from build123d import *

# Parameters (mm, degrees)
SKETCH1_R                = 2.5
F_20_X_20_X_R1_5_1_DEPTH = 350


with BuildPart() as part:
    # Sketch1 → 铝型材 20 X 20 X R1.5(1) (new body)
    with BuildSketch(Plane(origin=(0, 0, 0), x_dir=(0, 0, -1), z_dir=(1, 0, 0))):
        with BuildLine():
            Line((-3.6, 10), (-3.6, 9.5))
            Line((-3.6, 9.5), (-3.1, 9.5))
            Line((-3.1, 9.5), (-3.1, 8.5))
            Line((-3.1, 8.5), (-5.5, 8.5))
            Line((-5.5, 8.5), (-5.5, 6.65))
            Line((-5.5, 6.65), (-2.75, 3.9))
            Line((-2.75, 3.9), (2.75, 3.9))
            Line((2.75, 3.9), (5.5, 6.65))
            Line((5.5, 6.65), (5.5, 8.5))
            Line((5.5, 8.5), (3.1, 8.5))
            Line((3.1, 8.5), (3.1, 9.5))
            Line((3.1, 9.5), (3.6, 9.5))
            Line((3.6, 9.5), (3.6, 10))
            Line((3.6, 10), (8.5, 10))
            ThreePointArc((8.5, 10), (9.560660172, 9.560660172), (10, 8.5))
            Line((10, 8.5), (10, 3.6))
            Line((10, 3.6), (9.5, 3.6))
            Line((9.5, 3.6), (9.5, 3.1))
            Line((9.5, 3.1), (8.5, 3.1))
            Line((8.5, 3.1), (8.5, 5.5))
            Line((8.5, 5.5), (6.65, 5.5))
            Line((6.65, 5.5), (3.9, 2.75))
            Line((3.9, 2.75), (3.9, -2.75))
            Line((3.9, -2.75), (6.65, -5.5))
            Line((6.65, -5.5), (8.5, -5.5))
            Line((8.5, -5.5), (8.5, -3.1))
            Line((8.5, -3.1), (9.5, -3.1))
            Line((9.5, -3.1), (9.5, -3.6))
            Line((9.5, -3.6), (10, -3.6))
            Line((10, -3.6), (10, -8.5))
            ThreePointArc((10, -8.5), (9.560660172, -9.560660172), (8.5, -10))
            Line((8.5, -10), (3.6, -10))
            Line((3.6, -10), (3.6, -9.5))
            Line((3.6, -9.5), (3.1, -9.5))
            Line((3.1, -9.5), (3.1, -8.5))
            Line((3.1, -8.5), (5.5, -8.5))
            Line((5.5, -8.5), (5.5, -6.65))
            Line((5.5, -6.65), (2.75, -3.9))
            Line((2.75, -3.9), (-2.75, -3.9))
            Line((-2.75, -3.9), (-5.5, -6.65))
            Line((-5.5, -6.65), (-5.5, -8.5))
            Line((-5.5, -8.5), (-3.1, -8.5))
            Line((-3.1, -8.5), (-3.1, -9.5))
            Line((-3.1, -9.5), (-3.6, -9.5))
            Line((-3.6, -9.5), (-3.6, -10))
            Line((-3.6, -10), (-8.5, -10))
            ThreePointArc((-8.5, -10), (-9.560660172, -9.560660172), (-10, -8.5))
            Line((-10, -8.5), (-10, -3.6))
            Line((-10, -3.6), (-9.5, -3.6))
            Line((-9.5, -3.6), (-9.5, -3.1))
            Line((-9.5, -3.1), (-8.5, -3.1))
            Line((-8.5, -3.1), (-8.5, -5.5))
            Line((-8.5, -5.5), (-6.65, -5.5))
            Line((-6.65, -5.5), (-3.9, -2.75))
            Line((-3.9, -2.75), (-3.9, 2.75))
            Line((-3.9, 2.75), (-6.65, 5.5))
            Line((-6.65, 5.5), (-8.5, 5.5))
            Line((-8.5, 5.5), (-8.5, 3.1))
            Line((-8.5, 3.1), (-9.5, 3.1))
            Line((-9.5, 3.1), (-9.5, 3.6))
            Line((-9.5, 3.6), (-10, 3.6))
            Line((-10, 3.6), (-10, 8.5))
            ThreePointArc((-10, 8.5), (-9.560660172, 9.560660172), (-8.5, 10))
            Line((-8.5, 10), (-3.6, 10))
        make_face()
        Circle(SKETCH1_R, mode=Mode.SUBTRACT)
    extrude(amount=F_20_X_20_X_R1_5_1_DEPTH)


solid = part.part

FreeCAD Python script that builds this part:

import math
import FreeCAD as App
import Part
import Sketcher
from FreeCAD import Vector

doc = App.newDocument("Part")
body = doc.addObject("PartDesign::Body", "Body")

sketch1 = body.newObject("Sketcher::SketchObject", "Sketch")
sketch1.AttachmentSupport = (doc.getObject("YZ_Plane"), [""])
sketch1.MapMode = "FlatFace"
sketch1.addGeometry(Part.LineSegment(Vector(9.5, 3.6, 0), Vector(10, 3.6, 0)), False)
sketch1.addGeometry(Part.LineSegment(Vector(10, 3.6, 0), Vector(10, 8.5, 0)), False)
sketch1.addGeometry(Part.ArcOfCircle(Part.Circle(Vector(8.5, 8.5, 0), Vector(0, 0, 1), 1.5), math.radians(0), math.radians(90)), False)
sketch1.addGeometry(Part.LineSegment(Vector(8.5, 10, 0), Vector(3.6, 10, 0)), False)
sketch1.addGeometry(Part.LineSegment(Vector(3.6, 10, 0), Vector(3.6, 9.5, 0)), False)
sketch1.addGeometry(Part.LineSegment(Vector(3.6, 9.5, 0), Vector(3.1, 9.5, 0)), False)
sketch1.addGeometry(Part.LineSegment(Vector(3.1, 9.5, 0), Vector(3.1, 8.5, 0)), False)
sketch1.addGeometry(Part.LineSegment(Vector(3.1, 8.5, 0), Vector(5.5, 8.5, 0)), False)
sketch1.addGeometry(Part.LineSegment(Vector(5.5, 8.5, 0), Vector(5.5, 6.7, 0)), False)
sketch1.addGeometry(Part.LineSegment(Vector(5.5, 6.7, 0), Vector(2.8, 3.9, 0)), False)
sketch1.addGeometry(Part.LineSegment(Vector(2.8, 3.9, 0), Vector(-2.8, 3.9, 0)), False)
sketch1.addGeometry(Part.LineSegment(Vector(-2.8, 3.9, 0), Vector(-5.5, 6.7, 0)), False)
sketch1.addGeometry(Part.LineSegment(Vector(-5.5, 6.7, 0), Vector(-5.5, 8.5, 0)), False)
sketch1.addGeometry(Part.LineSegment(Vector(-5.5, 8.5, 0), Vector(-3.1, 8.5, 0)), False)
sketch1.addGeometry(Part.LineSegment(Vector(-3.1, 8.5, 0), Vector(-3.1, 9.5, 0)), False)
sketch1.addGeometry(Part.LineSegment(Vector(-3.1, 9.5, 0), Vector(-3.6, 9.5, 0)), False)
sketch1.addGeometry(Part.LineSegment(Vector(-3.6, 9.5, 0), Vector(-3.6, 10, 0)), False)
sketch1.addGeometry(Part.LineSegment(Vector(-3.6, 10, 0), Vector(-8.5, 10, 0)), False)
sketch1.addGeometry(Part.ArcOfCircle(Part.Circle(Vector(-8.5, 8.5, 0), Vector(0, 0, 1), 1.5), math.radians(90), math.radians(180)), False)
sketch1.addGeometry(Part.LineSegment(Vector(-10, 8.5, 0), Vector(-10, 3.6, 0)), False)
sketch1.addGeometry(Part.LineSegment(Vector(-10, 3.6, 0), Vector(-9.5, 3.6, 0)), False)
sketch1.addGeometry(Part.LineSegment(Vector(-9.5, 3.6, 0), Vector(-9.5, 3.1, 0)), False)
sketch1.addGeometry(Part.LineSegment(Vector(-9.5, 3.1, 0), Vector(-8.5, 3.1, 0)), False)
sketch1.addGeometry(Part.LineSegment(Vector(-8.5, 3.1, 0), Vector(-8.5, 5.5, 0)), False)
sketch1.addGeometry(Part.LineSegment(Vector(-8.5, 5.5, 0), Vector(-6.7, 5.5, 0)), False)
sketch1.addGeometry(Part.LineSegment(Vector(-6.7, 5.5, 0), Vector(-3.9, 2.8, 0)), False)
sketch1.addGeometry(Part.LineSegment(Vector(-3.9, 2.8, 0), Vector(-3.9, -2.8, 0)), False)
sketch1.addGeometry(Part.LineSegment(Vector(-3.9, -2.8, 0), Vector(-6.7, -5.5, 0)), False)
sketch1.addGeometry(Part.LineSegment(Vector(-6.7, -5.5, 0), Vector(-8.5, -5.5, 0)), False)
sketch1.addGeometry(Part.LineSegment(Vector(-8.5, -5.5, 0), Vector(-8.5, -3.1, 0)), False)
sketch1.addGeometry(Part.LineSegment(Vector(-8.5, -3.1, 0), Vector(-9.5, -3.1, 0)), False)
sketch1.addGeometry(Part.LineSegment(Vector(-9.5, -3.1, 0), Vector(-9.5, -3.6, 0)), False)
sketch1.addGeometry(Part.LineSegment(Vector(-9.5, -3.6, 0), Vector(-10, -3.6, 0)), False)
sketch1.addGeometry(Part.LineSegment(Vector(-10, -3.6, 0), Vector(-10, -8.5, 0)), False)
sketch1.addGeometry(Part.ArcOfCircle(Part.Circle(Vector(-8.5, -8.5, 0), Vector(0, 0, 1), 1.5), math.radians(180), math.radians(270)), False)
sketch1.addGeometry(Part.LineSegment(Vector(-8.5, -10, 0), Vector(-3.6, -10, 0)), False)
sketch1.addGeometry(Part.LineSegment(Vector(-3.6, -10, 0), Vector(-3.6, -9.5, 0)), False)
sketch1.addGeometry(Part.LineSegment(Vector(-3.6, -9.5, 0), Vector(-3.1, -9.5, 0)), False)
sketch1.addGeometry(Part.LineSegment(Vector(-3.1, -9.5, 0), Vector(-3.1, -8.5, 0)), False)
sketch1.addGeometry(Part.LineSegment(Vector(-3.1, -8.5, 0), Vector(-5.5, -8.5, 0)), False)
sketch1.addGeometry(Part.LineSegment(Vector(-5.5, -8.5, 0), Vector(-5.5, -6.7, 0)), False)
sketch1.addGeometry(Part.LineSegment(Vector(-5.5, -6.7, 0), Vector(-2.8, -3.9, 0)), False)
sketch1.addGeometry(Part.LineSegment(Vector(-2.8, -3.9, 0), Vector(2.8, -3.9, 0)), False)
sketch1.addGeometry(Part.LineSegment(Vector(2.8, -3.9, 0), Vector(5.5, -6.7, 0)), False)
sketch1.addGeometry(Part.LineSegment(Vector(5.5, -6.7, 0), Vector(5.5, -8.5, 0)), False)
sketch1.addGeometry(Part.LineSegment(Vector(5.5, -8.5, 0), Vector(3.1, -8.5, 0)), False)
sketch1.addGeometry(Part.LineSegment(Vector(3.1, -8.5, 0), Vector(3.1, -9.5, 0)), False)
sketch1.addGeometry(Part.LineSegment(Vector(3.1, -9.5, 0), Vector(3.6, -9.5, 0)), False)
sketch1.addGeometry(Part.LineSegment(Vector(3.6, -9.5, 0), Vector(3.6, -10, 0)), False)
sketch1.addGeometry(Part.LineSegment(Vector(3.6, -10, 0), Vector(8.5, -10, 0)), False)
sketch1.addGeometry(Part.ArcOfCircle(Part.Circle(Vector(8.5, -8.5, 0), Vector(0, 0, 1), 1.5), math.radians(-90), math.radians(0)), False)
sketch1.addGeometry(Part.LineSegment(Vector(10, -8.5, 0), Vector(10, -3.6, 0)), False)
sketch1.addGeometry(Part.LineSegment(Vector(10, -3.6, 0), Vector(9.5, -3.6, 0)), False)
sketch1.addGeometry(Part.LineSegment(Vector(9.5, -3.6, 0), Vector(9.5, -3.1, 0)), False)
sketch1.addGeometry(Part.LineSegment(Vector(9.5, -3.1, 0), Vector(8.5, -3.1, 0)), False)
sketch1.addGeometry(Part.LineSegment(Vector(8.5, -3.1, 0), Vector(8.5, -5.5, 0)), False)
sketch1.addGeometry(Part.LineSegment(Vector(8.5, -5.5, 0), Vector(6.7, -5.5, 0)), False)
sketch1.addGeometry(Part.LineSegment(Vector(6.7, -5.5, 0), Vector(3.9, -2.8, 0)), False)
sketch1.addGeometry(Part.LineSegment(Vector(3.9, -2.8, 0), Vector(3.9, 2.8, 0)), False)
sketch1.addGeometry(Part.LineSegment(Vector(3.9, 2.8, 0), Vector(6.7, 5.5, 0)), False)
sketch1.addGeometry(Part.LineSegment(Vector(6.7, 5.5, 0), Vector(8.5, 5.5, 0)), False)
sketch1.addGeometry(Part.LineSegment(Vector(8.5, 5.5, 0), Vector(8.5, 3.1, 0)), False)
sketch1.addGeometry(Part.LineSegment(Vector(8.5, 3.1, 0), Vector(9.5, 3.1, 0)), False)
sketch1.addGeometry(Part.LineSegment(Vector(9.5, 3.1, 0), Vector(9.5, 3.6, 0)), False)
sketch1.addGeometry(Part.Circle(Vector(0, 0, 0), Vector(0, 0, 1), 2.5), False)
sketch1.addConstraint(Sketcher.Constraint("Coincident", 0, 2, 1, 1))
sketch1.addConstraint(Sketcher.Constraint("Tangent", 1, 2, 2, 1))
sketch1.addConstraint(Sketcher.Constraint("Tangent", 2, 2, 3, 1))
sketch1.addConstraint(Sketcher.Constraint("Coincident", 3, 2, 4, 1))
sketch1.addConstraint(Sketcher.Constraint("Coincident", 4, 2, 5, 1))
sketch1.addConstraint(Sketcher.Constraint("Coincident", 5, 2, 6, 1))
sketch1.addConstraint(Sketcher.Constraint("Coincident", 6, 2, 7, 1))
sketch1.addConstraint(Sketcher.Constraint("Coincident", 7, 2, 8, 1))
sketch1.addConstraint(Sketcher.Constraint("Coincident", 8, 2, 9, 1))
sketch1.addConstraint(Sketcher.Constraint("Coincident", 9, 2, 10, 1))
sketch1.addConstraint(Sketcher.Constraint("Coincident", 10, 2, 11, 1))
sketch1.addConstraint(Sketcher.Constraint("Coincident", 11, 2, 12, 1))
sketch1.addConstraint(Sketcher.Constraint("Coincident", 12, 2, 13, 1))
sketch1.addConstraint(Sketcher.Constraint("Coincident", 13, 2, 14, 1))
sketch1.addConstraint(Sketcher.Constraint("Coincident", 14, 2, 15, 1))
sketch1.addConstraint(Sketcher.Constraint("Coincident", 15, 2, 16, 1))
sketch1.addConstraint(Sketcher.Constraint("Coincident", 16, 2, 17, 1))
sketch1.addConstraint(Sketcher.Constraint("Tangent", 17, 2, 18, 1))
sketch1.addConstraint(Sketcher.Constraint("Tangent", 18, 2, 19, 1))
sketch1.addConstraint(Sketcher.Constraint("Coincident", 19, 2, 20, 1))
sketch1.addConstraint(Sketcher.Constraint("Coincident", 20, 2, 21, 1))
sketch1.addConstraint(Sketcher.Constraint("Coincident", 21, 2, 22, 1))
sketch1.addConstraint(Sketcher.Constraint("Coincident", 22, 2, 23, 1))
sketch1.addConstraint(Sketcher.Constraint("Coincident", 23, 2, 24, 1))
sketch1.addConstraint(Sketcher.Constraint("Coincident", 24, 2, 25, 1))
sketch1.addConstraint(Sketcher.Constraint("Coincident", 25, 2, 26, 1))
sketch1.addConstraint(Sketcher.Constraint("Coincident", 26, 2, 27, 1))
sketch1.addConstraint(Sketcher.Constraint("Coincident", 27, 2, 28, 1))
sketch1.addConstraint(Sketcher.Constraint("Coincident", 28, 2, 29, 1))
sketch1.addConstraint(Sketcher.Constraint("Coincident", 29, 2, 30, 1))
sketch1.addConstraint(Sketcher.Constraint("Coincident", 30, 2, 31, 1))
sketch1.addConstraint(Sketcher.Constraint("Coincident", 31, 2, 32, 1))
sketch1.addConstraint(Sketcher.Constraint("Coincident", 32, 2, 33, 1))
sketch1.addConstraint(Sketcher.Constraint("Tangent", 33, 2, 34, 1))
sketch1.addConstraint(Sketcher.Constraint("Tangent", 34, 2, 35, 1))
sketch1.addConstraint(Sketcher.Constraint("Coincident", 35, 2, 36, 1))
sketch1.addConstraint(Sketcher.Constraint("Coincident", 36, 2, 37, 1))
sketch1.addConstraint(Sketcher.Constraint("Coincident", 37, 2, 38, 1))
sketch1.addConstraint(Sketcher.Constraint("Coincident", 38, 2, 39, 1))
sketch1.addConstraint(Sketcher.Constraint("Coincident", 39, 2, 40, 1))
sketch1.addConstraint(Sketcher.Constraint("Coincident", 40, 2, 41, 1))
sketch1.addConstraint(Sketcher.Constraint("Coincident", 41, 2, 42, 1))
sketch1.addConstraint(Sketcher.Constraint("Coincident", 42, 2, 43, 1))
sketch1.addConstraint(Sketcher.Constraint("Coincident", 43, 2, 44, 1))
sketch1.addConstraint(Sketcher.Constraint("Coincident", 44, 2, 45, 1))
sketch1.addConstraint(Sketcher.Constraint("Coincident", 45, 2, 46, 1))
sketch1.addConstraint(Sketcher.Constraint("Coincident", 46, 2, 47, 1))
sketch1.addConstraint(Sketcher.Constraint("Coincident", 47, 2, 48, 1))
sketch1.addConstraint(Sketcher.Constraint("Coincident", 48, 2, 49, 1))
sketch1.addConstraint(Sketcher.Constraint("Tangent", 49, 2, 50, 1))
sketch1.addConstraint(Sketcher.Constraint("Tangent", 50, 2, 51, 1))
sketch1.addConstraint(Sketcher.Constraint("Coincident", 51, 2, 52, 1))
sketch1.addConstraint(Sketcher.Constraint("Coincident", 52, 2, 53, 1))
sketch1.addConstraint(Sketcher.Constraint("Coincident", 53, 2, 54, 1))
sketch1.addConstraint(Sketcher.Constraint("Coincident", 54, 2, 55, 1))
sketch1.addConstraint(Sketcher.Constraint("Coincident", 55, 2, 56, 1))
sketch1.addConstraint(Sketcher.Constraint("Coincident", 56, 2, 57, 1))
sketch1.addConstraint(Sketcher.Constraint("Coincident", 57, 2, 58, 1))
sketch1.addConstraint(Sketcher.Constraint("Coincident", 58, 2, 59, 1))
sketch1.addConstraint(Sketcher.Constraint("Coincident", 59, 2, 60, 1))
sketch1.addConstraint(Sketcher.Constraint("Coincident", 60, 2, 61, 1))
sketch1.addConstraint(Sketcher.Constraint("Coincident", 61, 2, 62, 1))
sketch1.addConstraint(Sketcher.Constraint("Coincident", 62, 2, 63, 1))
sketch1.addConstraint(Sketcher.Constraint("Coincident", 63, 2, 0, 1))
sketch1.addConstraint(Sketcher.Constraint("Horizontal", 0))
sketch1.addConstraint(Sketcher.Constraint("Vertical", 1))
sketch1.addConstraint(Sketcher.Constraint("Horizontal", 3))
sketch1.addConstraint(Sketcher.Constraint("Vertical", 4))
sketch1.addConstraint(Sketcher.Constraint("Horizontal", 5))
sketch1.addConstraint(Sketcher.Constraint("Vertical", 6))
sketch1.addConstraint(Sketcher.Constraint("Horizontal", 7))
sketch1.addConstraint(Sketcher.Constraint("Vertical", 8))
sketch1.addConstraint(Sketcher.Constraint("Horizontal", 10))
sketch1.addConstraint(Sketcher.Constraint("Vertical", 12))
sketch1.addConstraint(Sketcher.Constraint("Horizontal", 13))
sketch1.addConstraint(Sketcher.Constraint("Vertical", 14))
sketch1.addConstraint(Sketcher.Constraint("Horizontal", 15))
sketch1.addConstraint(Sketcher.Constraint("Vertical", 16))
sketch1.addConstraint(Sketcher.Constraint("Horizontal", 17))
sketch1.addConstraint(Sketcher.Constraint("Vertical", 19))
sketch1.addConstraint(Sketcher.Constraint("Horizontal", 20))
sketch1.addConstraint(Sketcher.Constraint("Vertical", 21))
sketch1.addConstraint(Sketcher.Constraint("Horizontal", 22))
sketch1.addConstraint(Sketcher.Constraint("Vertical", 23))
sketch1.addConstraint(Sketcher.Constraint("Horizontal", 24))
sketch1.addConstraint(Sketcher.Constraint("Vertical", 26))
sketch1.addConstraint(Sketcher.Constraint("Horizontal", 28))
sketch1.addConstraint(Sketcher.Constraint("Vertical", 29))
sketch1.addConstraint(Sketcher.Constraint("Horizontal", 30))
sketch1.addConstraint(Sketcher.Constraint("Vertical", 31))
sketch1.addConstraint(Sketcher.Constraint("Horizontal", 32))
sketch1.addConstraint(Sketcher.Constraint("Vertical", 33))
sketch1.addConstraint(Sketcher.Constraint("Horizontal", 35))
sketch1.addConstraint(Sketcher.Constraint("Vertical", 36))
sketch1.addConstraint(Sketcher.Constraint("Horizontal", 37))
sketch1.addConstraint(Sketcher.Constraint("Vertical", 38))
sketch1.addConstraint(Sketcher.Constraint("Horizontal", 39))
sketch1.addConstraint(Sketcher.Constraint("Vertical", 40))
sketch1.addConstraint(Sketcher.Constraint("Horizontal", 42))
sketch1.addConstraint(Sketcher.Constraint("Vertical", 44))
sketch1.addConstraint(Sketcher.Constraint("Horizontal", 45))
sketch1.addConstraint(Sketcher.Constraint("Vertical", 46))
sketch1.addConstraint(Sketcher.Constraint("Horizontal", 47))
sketch1.addConstraint(Sketcher.Constraint("Vertical", 48))
sketch1.addConstraint(Sketcher.Constraint("Horizontal", 49))
sketch1.addConstraint(Sketcher.Constraint("Vertical", 51))
sketch1.addConstraint(Sketcher.Constraint("Horizontal", 52))
sketch1.addConstraint(Sketcher.Constraint("Vertical", 53))
sketch1.addConstraint(Sketcher.Constraint("Horizontal", 54))
sketch1.addConstraint(Sketcher.Constraint("Vertical", 55))
sketch1.addConstraint(Sketcher.Constraint("Horizontal", 56))
sketch1.addConstraint(Sketcher.Constraint("Vertical", 58))
sketch1.addConstraint(Sketcher.Constraint("Horizontal", 60))
sketch1.addConstraint(Sketcher.Constraint("Vertical", 61))
sketch1.addConstraint(Sketcher.Constraint("Horizontal", 62))
sketch1.addConstraint(Sketcher.Constraint("Vertical", 63))
sketch1.addConstraint(Sketcher.Constraint("Coincident", 64, 3, -1, 1))
sketch1.addConstraint(Sketcher.Constraint("Equal", 2, 18))
sketch1.addConstraint(Sketcher.Constraint("Equal", 18, 34))
sketch1.addConstraint(Sketcher.Constraint("Equal", 34, 50))
sketch1.addConstraint(Sketcher.Constraint("Symmetric", 2, 3, 34, 3, -1, 1))
sketch1.addConstraint(Sketcher.Constraint("Symmetric", 18, 3, 50, 3, -1, 1))
sketch1.addConstraint(Sketcher.Constraint("Symmetric", 4, 2, 36, 2, -1, 1))
sketch1.addConstraint(Sketcher.Constraint("Symmetric", 6, 2, 38, 2, -1, 1))
sketch1.addConstraint(Sketcher.Constraint("Symmetric", 8, 2, 40, 2, -1, 1))
sketch1.addConstraint(Sketcher.Constraint("Symmetric", 9, 2, 41, 2, -1, 1))
sketch1.addConstraint(Sketcher.Constraint("Symmetric", 11, 2, 43, 2, -1, 1))
sketch1.addConstraint(Sketcher.Constraint("Symmetric", 13, 2, 45, 2, -1, 1))
sketch1.addConstraint(Sketcher.Constraint("Symmetric", 15, 2, 47, 2, -1, 1))
sketch1.addConstraint(Sketcher.Constraint("Symmetric", 20, 2, 52, 2, -1, 1))
sketch1.addConstraint(Sketcher.Constraint("Symmetric", 22, 2, 54, 2, -1, 1))
sketch1.addConstraint(Sketcher.Constraint("Symmetric", 24, 2, 56, 2, -1, 1))
sketch1.addConstraint(Sketcher.Constraint("Symmetric", 25, 2, 57, 2, -1, 1))
sketch1.addConstraint(Sketcher.Constraint("Symmetric", 27, 2, 59, 2, -1, 1))
sketch1.addConstraint(Sketcher.Constraint("Symmetric", 29, 2, 61, 2, -1, 1))
sketch1.addConstraint(Sketcher.Constraint("Symmetric", 31, 2, 63, 2, -1, 1))
sketch1.addConstraint(Sketcher.Constraint("Symmetric", 2, 3, 18, 3, -2))
sketch1.addConstraint(Sketcher.Constraint("Symmetric", 8, 2, 11, 2, -2))
sketch1.addConstraint(Sketcher.Constraint("Symmetric", 6, 2, 13, 2, -2))
sketch1.addConstraint(Sketcher.Constraint("Symmetric", 4, 2, 15, 2, -2))
sketch1.addConstraint(Sketcher.Constraint("Symmetric", 31, 2, 52, 2, -2))
sketch1.addConstraint(Sketcher.Constraint("Symmetric", 29, 2, 54, 2, -2))
sketch1.addConstraint(Sketcher.Constraint("Symmetric", 27, 2, 56, 2, -2))
sketch1.addConstraint(Sketcher.Constraint("Perpendicular", 9, 11))
sketch1.addConstraint(Sketcher.Constraint("Parallel", 11, 25))
sketch1.addConstraint(Sketcher.Constraint("Perpendicular", 25, 27))
sketch1.addConstraint(Sketcher.Constraint("Perpendicular", 41, 43))
sketch1.addConstraint(Sketcher.Constraint("Perpendicular", 57, 59))
sketch1.addConstraint(Sketcher.Constraint("Horizontal", 1, 2, 6, 2))
sketch1.addConstraint(Sketcher.Constraint("Horizontal", 26, 2, 57, 2))
sketch1.addConstraint(Sketcher.Constraint("Vertical", 17, 2, 22, 2))
sketch1.addConstraint(Sketcher.Constraint("Equal", 0, 5))
sketch1.addConstraint(Sketcher.Constraint("Equal", 49, 1))
sketch1.addConstraint(Sketcher.Constraint("Equal", 52, 4))
sketch1.addConstraint(Sketcher.Constraint("Equal", 60, 8))
sketch1.addConstraint(Sketcher.Constraint("Equal", 16, 21))
sketch1.addConstraint(Sketcher.Constraint("Equal", 45, 23))
sketch1.addConstraint(Sketcher.Constraint("Equal", 42, 26))
sketch1.addConstraint(Sketcher.Constraint("Equal", 11, 25))
sketch1.addConstraint(Sketcher.Constraint("Diameter", 64, 5.0))
sketch1.addConstraint(Sketcher.Constraint("Radius", 2, 1.5))
sketch1.addConstraint(Sketcher.Constraint("DistanceX", 22, 1, 22, 2, 1.0))
sketch1.addConstraint(Sketcher.Constraint("DistanceX", 3, 2, 3, 1, 4.9))
sketch1.addConstraint(Sketcher.Constraint("DistanceX", 7, 1, 7, 2, 2.4))
sketch1.addConstraint(Sketcher.Constraint("DistanceX", 10, 2, 10, 1, 5.5))
sketch1.addConstraint(Sketcher.Constraint("DistanceX", -1, 1, 0, 2, 10.0))
sketch1.addConstraint(Sketcher.Constraint("DistanceX", 24, 1, 24, 2, 1.85))
pad1 = body.newObject("PartDesign::Pad", "Pad")
pad1.Profile = sketch1
pad1.Length = 350

doc.recompute()
